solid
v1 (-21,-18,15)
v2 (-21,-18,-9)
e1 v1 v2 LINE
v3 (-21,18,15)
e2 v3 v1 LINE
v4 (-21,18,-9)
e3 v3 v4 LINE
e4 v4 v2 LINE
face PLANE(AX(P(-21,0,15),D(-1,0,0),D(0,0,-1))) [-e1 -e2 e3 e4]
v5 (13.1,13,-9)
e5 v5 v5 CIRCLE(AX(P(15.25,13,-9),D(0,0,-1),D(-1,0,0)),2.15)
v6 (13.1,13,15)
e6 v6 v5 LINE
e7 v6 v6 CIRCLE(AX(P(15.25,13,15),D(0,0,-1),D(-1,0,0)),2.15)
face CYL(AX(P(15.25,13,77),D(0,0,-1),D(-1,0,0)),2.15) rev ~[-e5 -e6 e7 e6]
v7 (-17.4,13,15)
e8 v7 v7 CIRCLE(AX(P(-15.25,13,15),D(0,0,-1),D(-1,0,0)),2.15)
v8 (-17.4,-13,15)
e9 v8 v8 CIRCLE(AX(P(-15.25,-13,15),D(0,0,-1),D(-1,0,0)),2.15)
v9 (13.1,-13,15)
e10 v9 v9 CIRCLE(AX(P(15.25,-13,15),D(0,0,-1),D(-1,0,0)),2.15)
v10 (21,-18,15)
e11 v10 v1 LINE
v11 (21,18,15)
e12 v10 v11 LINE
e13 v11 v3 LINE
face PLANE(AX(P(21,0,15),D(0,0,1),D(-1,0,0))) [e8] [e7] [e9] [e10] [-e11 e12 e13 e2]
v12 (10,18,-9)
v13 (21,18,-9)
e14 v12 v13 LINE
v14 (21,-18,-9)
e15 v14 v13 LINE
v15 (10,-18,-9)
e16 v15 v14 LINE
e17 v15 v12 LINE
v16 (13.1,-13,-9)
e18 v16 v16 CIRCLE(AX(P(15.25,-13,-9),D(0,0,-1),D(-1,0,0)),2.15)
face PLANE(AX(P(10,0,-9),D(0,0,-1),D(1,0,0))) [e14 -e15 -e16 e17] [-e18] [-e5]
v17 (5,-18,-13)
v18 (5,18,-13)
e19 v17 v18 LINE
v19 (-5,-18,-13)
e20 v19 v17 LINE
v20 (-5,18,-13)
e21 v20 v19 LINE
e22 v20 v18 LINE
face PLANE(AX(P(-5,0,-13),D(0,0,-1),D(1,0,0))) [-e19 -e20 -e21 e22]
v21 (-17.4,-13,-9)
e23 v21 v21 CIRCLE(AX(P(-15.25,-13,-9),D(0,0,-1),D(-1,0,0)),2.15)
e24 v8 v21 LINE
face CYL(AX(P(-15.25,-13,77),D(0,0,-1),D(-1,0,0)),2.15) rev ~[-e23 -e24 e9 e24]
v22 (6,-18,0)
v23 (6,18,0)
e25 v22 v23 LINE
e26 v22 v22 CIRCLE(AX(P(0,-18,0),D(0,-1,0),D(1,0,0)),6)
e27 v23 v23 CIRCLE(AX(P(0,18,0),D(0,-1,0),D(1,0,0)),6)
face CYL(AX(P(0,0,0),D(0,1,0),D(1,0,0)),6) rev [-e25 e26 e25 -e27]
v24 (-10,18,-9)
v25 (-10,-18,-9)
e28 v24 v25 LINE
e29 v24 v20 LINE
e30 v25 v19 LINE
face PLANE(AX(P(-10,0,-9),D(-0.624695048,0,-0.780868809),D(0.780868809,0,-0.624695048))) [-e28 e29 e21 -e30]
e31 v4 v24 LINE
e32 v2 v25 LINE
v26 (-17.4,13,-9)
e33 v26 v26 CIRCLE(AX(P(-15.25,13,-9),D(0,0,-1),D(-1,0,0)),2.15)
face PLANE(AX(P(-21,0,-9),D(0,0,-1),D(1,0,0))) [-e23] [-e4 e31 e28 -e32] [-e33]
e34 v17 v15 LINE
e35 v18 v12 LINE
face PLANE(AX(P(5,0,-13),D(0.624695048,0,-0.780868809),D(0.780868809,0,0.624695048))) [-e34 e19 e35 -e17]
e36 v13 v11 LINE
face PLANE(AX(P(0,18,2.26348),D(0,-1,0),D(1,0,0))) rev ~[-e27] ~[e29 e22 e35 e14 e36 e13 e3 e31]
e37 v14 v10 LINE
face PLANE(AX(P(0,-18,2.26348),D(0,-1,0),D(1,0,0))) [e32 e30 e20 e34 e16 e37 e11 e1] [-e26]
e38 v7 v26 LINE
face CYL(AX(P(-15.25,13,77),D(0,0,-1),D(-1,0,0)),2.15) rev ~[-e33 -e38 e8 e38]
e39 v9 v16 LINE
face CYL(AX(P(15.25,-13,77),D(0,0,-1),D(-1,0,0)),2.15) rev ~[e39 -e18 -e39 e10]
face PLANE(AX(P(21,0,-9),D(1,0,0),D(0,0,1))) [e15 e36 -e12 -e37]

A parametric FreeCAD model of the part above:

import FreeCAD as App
import Part
import Sketcher
Q = App.Units.Quantity


def add_polygon(sketch, points):
    """Adds a closed chain of lines whose ends are joined by coincident constraints."""
    first, n = sketch.GeometryCount, len(points)
    for a, b in zip(points, points[1:] + points[:1]):
        sketch.addGeometry(Part.LineSegment(App.Vector(*a, 0), App.Vector(*b, 0)), False)
    for i in range(n):
        sketch.addConstraint(Sketcher.Constraint("Coincident", first + i, 2, first + (i + 1) % n, 1))

doc = App.newDocument("Part")
params = doc.addObject("Spreadsheet::Sheet", "Params")
for row, (alias, value) in enumerate([
    ("sketch1_diameter", "12 mm"),
    ("sketch1_width", "42 mm"),
    ("sketch1_width2", "11 mm"),
    ("sketch1_width3", "10 mm"),
    ("sketch1_height", "24 mm"),
    ("pad1_length", "36 mm"),
    ("sketch2_diameter", "4.3 mm"),
    ("hole_diameter", "4.3 mm"),
], start=1):
    params.set(f"A{row}", alias)
    params.set(f"B{row}", "=" + value)
    params.setAlias(f"B{row}", alias)

body = doc.addObject("PartDesign::Body", "Body")

sketch1 = doc.addObject("Sketcher::SketchObject", "Sketch")
body.addObject(sketch1)
sketch1.AttachmentSupport = (doc.XZ_Plane, [""])
sketch1.MapMode = "FlatFace"
add_polygon(sketch1, [(21, 15), (-21, 15), (-21, -9), (-10, -9), (-5, -13), (5, -13), (10, -9), (21, -9)])
sketch1.addGeometry(Part.Circle(App.Vector(0, 0, 0), App.Vector(0, 0, 1), 6), False)
sketch1.addConstraint([
    Sketcher.Constraint("Horizontal", 0),
    Sketcher.Constraint("Vertical", 1),
    Sketcher.Constraint("Horizontal", 2),
    Sketcher.Constraint("Horizontal", 4),
    Sketcher.Constraint("Horizontal", 6),
    Sketcher.Constraint("Vertical", 7),
    Sketcher.Constraint("Coincident", 8, 3, -1, 1),
    Sketcher.Constraint("Symmetric", 2, 2, 5, 2, -2),
    Sketcher.Constraint("Equal", 2, 6),
    Sketcher.Constraint("Equal", 3, 5),
    Sketcher.Constraint("Diameter", 8, Q("12 mm")),
    Sketcher.Constraint("DistanceX", 0, 2, 0, 1, Q("42 mm")),
    Sketcher.Constraint("DistanceX", 2, 1, 2, 2, Q("11 mm")),
    Sketcher.Constraint("DistanceX", 4, 1, 4, 2, Q("10 mm")),
    Sketcher.Constraint("DistanceY", 1, 2, 1, 1, Q("24 mm")),
    Sketcher.Constraint("DistanceY", -1, 1, 0, 2, Q("15 mm")),
    Sketcher.Constraint("DistanceY", 3, 2, -1, 1, Q("13 mm")),
])
sketch1.setExpression("Constraints[18]", "Params.sketch1_diameter")
sketch1.setExpression("Constraints[19]", "Params.sketch1_width")
sketch1.setExpression("Constraints[20]", "Params.sketch1_width2")
sketch1.setExpression("Constraints[21]", "Params.sketch1_width3")
sketch1.setExpression("Constraints[22]", "Params.sketch1_height")
pad1 = doc.addObject("PartDesign::Pad", "Pad")
body.addObject(pad1)
pad1.Profile = sketch1
pad1.setExpression("Length", "Params.pad1_length")
pad1.Midplane = True

sketch2 = doc.addObject("Sketcher::SketchObject", "Sketch001")
body.addObject(sketch2)
sketch2.AttachmentSupport = (doc.XY_Plane, [""])
sketch2.MapMode = "FlatFace"
sketch2.AttachmentOffset = App.Placement(App.Vector(0, 0, 15), App.Rotation())
sketch2.addGeometry([
    Part.Circle(App.Vector(-15.25, 13, 0), App.Vector(0, 0, 1), 2.15),
    Part.Circle(App.Vector(15.25, 13, 0), App.Vector(0, 0, 1), 2.15),
    Part.Circle(App.Vector(15.25, -13, 0), App.Vector(0, 0, 1), 2.15),
    Part.Circle(App.Vector(-15.25, -13, 0), App.Vector(0, 0, 1), 2.15),
], False)
sketch2.addConstraint([
    Sketcher.Constraint("Equal", 0, 1),
    Sketcher.Constraint("Equal", 1, 2),
    Sketcher.Constraint("Equal", 2, 3),
    Sketcher.Constraint("Symmetric", 0, 3, 2, 3, -1, 1),
    Sketcher.Constraint("Symmetric", 1, 3, 3, 3, -1, 1),
    Sketcher.Constraint("Symmetric", 0, 3, 1, 3, -2),
    Sketcher.Constraint("Diameter", 0, Q("4.3 mm")),
    Sketcher.Constraint("DistanceY", -1, 1, 0, 3, Q("13 mm")),
    Sketcher.Constraint("DistanceX", 0, 3, 1, 3, Q("30.5 mm")),
])
sketch2.setExpression("Constraints[6]", "Params.sketch2_diameter")
doc.recompute()
hole = doc.addObject("PartDesign::Hole", "Hole")
body.addObject(hole)
hole.Profile = sketch2
hole.ThreadType = "None"
hole.setExpression("Diameter", "Params.hole_diameter")
hole.DepthType = "ThroughAll"

doc.recompute()
